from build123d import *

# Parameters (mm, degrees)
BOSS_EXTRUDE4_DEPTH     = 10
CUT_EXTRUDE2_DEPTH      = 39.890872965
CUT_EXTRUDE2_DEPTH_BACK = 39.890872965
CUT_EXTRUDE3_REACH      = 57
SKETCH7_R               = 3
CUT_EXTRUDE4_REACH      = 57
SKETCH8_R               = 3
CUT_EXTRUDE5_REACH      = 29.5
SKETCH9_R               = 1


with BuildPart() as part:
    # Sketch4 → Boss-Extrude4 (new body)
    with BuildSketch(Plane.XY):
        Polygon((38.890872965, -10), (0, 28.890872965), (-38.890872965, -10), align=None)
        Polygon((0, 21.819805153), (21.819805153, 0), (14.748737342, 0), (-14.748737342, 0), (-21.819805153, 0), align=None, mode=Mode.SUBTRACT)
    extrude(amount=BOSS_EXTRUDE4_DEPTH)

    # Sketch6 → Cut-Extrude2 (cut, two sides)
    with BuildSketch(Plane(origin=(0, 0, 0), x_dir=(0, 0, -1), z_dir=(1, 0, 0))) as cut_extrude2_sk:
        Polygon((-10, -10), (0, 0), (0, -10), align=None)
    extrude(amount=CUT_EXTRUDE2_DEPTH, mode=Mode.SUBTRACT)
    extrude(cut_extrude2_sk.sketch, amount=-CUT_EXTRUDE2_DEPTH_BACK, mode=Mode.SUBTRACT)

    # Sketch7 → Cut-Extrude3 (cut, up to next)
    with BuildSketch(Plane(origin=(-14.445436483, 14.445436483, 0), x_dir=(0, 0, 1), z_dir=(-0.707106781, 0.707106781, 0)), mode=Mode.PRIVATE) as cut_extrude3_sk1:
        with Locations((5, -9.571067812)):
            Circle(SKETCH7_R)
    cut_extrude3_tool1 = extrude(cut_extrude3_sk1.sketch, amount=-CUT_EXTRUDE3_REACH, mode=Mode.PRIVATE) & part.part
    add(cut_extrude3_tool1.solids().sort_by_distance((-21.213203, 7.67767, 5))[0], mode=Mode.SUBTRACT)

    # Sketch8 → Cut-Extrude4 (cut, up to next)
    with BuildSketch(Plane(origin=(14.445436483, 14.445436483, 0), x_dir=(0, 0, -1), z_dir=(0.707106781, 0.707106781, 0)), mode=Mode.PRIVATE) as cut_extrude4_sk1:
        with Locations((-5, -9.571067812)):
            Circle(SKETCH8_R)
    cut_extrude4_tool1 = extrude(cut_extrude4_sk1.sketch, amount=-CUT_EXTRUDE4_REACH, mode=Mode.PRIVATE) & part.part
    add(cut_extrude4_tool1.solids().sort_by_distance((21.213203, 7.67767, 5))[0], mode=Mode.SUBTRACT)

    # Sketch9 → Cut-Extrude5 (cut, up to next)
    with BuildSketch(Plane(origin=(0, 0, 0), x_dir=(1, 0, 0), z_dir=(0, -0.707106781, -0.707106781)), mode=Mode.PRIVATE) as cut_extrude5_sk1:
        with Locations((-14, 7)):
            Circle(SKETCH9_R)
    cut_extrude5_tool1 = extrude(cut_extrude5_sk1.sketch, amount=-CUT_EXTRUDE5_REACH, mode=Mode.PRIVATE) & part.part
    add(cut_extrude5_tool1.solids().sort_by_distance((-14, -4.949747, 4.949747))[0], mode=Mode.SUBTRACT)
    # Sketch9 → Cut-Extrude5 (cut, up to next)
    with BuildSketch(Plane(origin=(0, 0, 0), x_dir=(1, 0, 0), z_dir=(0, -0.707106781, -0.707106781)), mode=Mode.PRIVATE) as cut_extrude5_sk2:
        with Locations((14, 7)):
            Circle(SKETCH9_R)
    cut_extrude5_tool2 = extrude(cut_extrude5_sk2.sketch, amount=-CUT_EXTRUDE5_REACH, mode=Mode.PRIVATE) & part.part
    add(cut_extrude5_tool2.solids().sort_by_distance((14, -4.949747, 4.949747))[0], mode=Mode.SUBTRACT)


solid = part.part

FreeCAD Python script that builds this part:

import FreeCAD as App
import Part
import Sketcher
from FreeCAD import Vector

doc = App.newDocument("Part")
body = doc.addObject("PartDesign::Body", "Body")

sketch1 = body.newObject("Sketcher::SketchObject", "Sketch")
sketch1.AttachmentSupport = (doc.getObject("XY_Plane"), [""])
sketch1.MapMode = "FlatFace"
sketch1.addGeometry([
    Part.LineSegment(Vector(39, -10, 0), Vector(0, 29, 0)),
    Part.LineSegment(Vector(0, 29, 0), Vector(-39, -10, 0)),
    Part.LineSegment(Vector(-39, -10, 0), Vector(39, -10, 0)),
    Part.LineSegment(Vector(-22, 0, 0), Vector(0, 22, 0)),
    Part.LineSegment(Vector(0, 22, 0), Vector(22, 0, 0)),
    Part.LineSegment(Vector(22, 0, 0), Vector(-22, 0, 0)),
], False)
sketch1.addConstraint([
    Sketcher.Constraint("Coincident", 0, 2, 1, 1),
    Sketcher.Constraint("Coincident", 1, 2, 2, 1),
    Sketcher.Constraint("Coincident", 2, 2, 0, 1),
    Sketcher.Constraint("Coincident", 3, 2, 4, 1),
    Sketcher.Constraint("Coincident", 4, 2, 5, 1),
    Sketcher.Constraint("Coincident", 5, 2, 3, 1),
    Sketcher.Constraint("Horizontal", 2),
    Sketcher.Constraint("Horizontal", 5),
    Sketcher.Constraint("Symmetric", 4, 2, 5, 2, -1, 1),
    Sketcher.Constraint("PointOnObject", 0, 2, -2),
    Sketcher.Constraint("PointOnObject", 3, 2, -2),
    Sketcher.Constraint("Perpendicular", 0, 1),
    Sketcher.Constraint("Parallel", 1, 3),
    Sketcher.Constraint("Perpendicular", 3, 4),
    Sketcher.Constraint("Distance", 0, 55.0),
    Sketcher.Constraint("DistanceY", 1, 2, -1, 1, 10.0),
    Sketcher.Constraint("DistanceX", 5, 2, 5, 1, 43.63961),
])
pad1 = body.newObject("PartDesign::Pad", "Pad")
pad1.Profile = sketch1
pad1.Length = 10

sketch2 = body.newObject("Sketcher::SketchObject", "Sketch001")
sketch2.AttachmentSupport = (doc.getObject("YZ_Plane"), [""])
sketch2.MapMode = "FlatFace"
sketch2.addGeometry([
    Part.LineSegment(Vector(0, 0, 0), Vector(-10, 10, 0)),
    Part.LineSegment(Vector(-10, 10, 0), Vector(-10, 0, 0)),
    Part.LineSegment(Vector(-10, 0, 0), Vector(0, 0, 0)),
], False)
sketch2.addConstraint([
    Sketcher.Constraint("Coincident", 0, 2, 1, 1),
    Sketcher.Constraint("Coincident", 1, 2, 2, 1),
    Sketcher.Constraint("Coincident", 2, 2, 0, 1),
    Sketcher.Constraint("Vertical", 1),
    Sketcher.Constraint("Horizontal", 2),
    Sketcher.Constraint("Coincident", 2, 2, -1, 1),
    Sketcher.Constraint("Equal", 2, 1),
    Sketcher.Constraint("DistanceX", 2, 1, 2, 2, 10.0),
])
pocket1 = body.newObject("PartDesign::Pocket", "Pocket")
pocket1.Profile = sketch2
pocket1.Type = "ThroughAll"
pocket1.Midplane = True

sketch3 = body.newObject("Sketcher::SketchObject", "Sketch002")
sketch3.Placement = App.Placement(Vector(-14.445436, 14.445436, 0), App.Rotation(Vector(0, 0, 1), Vector(0.707106781, 0.707106781, 0), Vector(-0.707106781, 0.707106781, 0), "ZXY"))
sketch3.addGeometry(Part.Circle(Vector(5, -9.6, 0), Vector(0, 0, 1), 3), False)
sketch3.addConstraint([
    Sketcher.Constraint("Diameter", 0, 6.0),
    Sketcher.Constraint("DistanceX", -1, 1, 0, 3, 5.0),
    Sketcher.Constraint("DistanceY", 0, 3, -1, 1, 9.571068),
])
pocket2 = body.newObject("PartDesign::Pocket", "Pocket001")
pocket2.Profile = sketch3
pocket2.Type = "UpToFirst"

sketch4 = body.newObject("Sketcher::SketchObject", "Sketch003")
sketch4.Placement = App.Placement(Vector(14.445436, 14.445436, 0), App.Rotation(Vector(0, 0, -1), Vector(-0.707106781, 0.707106781, 0), Vector(0.707106781, 0.707106781, 0), "ZXY"))
sketch4.addGeometry(Part.Circle(Vector(-5, -9.6, 0), Vector(0, 0, 1), 3), False)
sketch4.addConstraint([
    Sketcher.Constraint("Diameter", 0, 6.0),
    Sketcher.Constraint("DistanceX", 0, 3, -1, 1, 5.0),
    Sketcher.Constraint("DistanceY", 0, 3, -1, 1, 9.571068),
])
pocket3 = body.newObject("PartDesign::Pocket", "Pocket002")
pocket3.Profile = sketch4
pocket3.Type = "UpToFirst"

sketch5 = body.newObject("Sketcher::SketchObject", "Sketch004")
sketch5.Placement = App.Placement(Vector(0, 0, 0), App.Rotation(Vector(1, 0, 0), Vector(0, -0.707106781, 0.707106781), Vector(0, -0.707106781, -0.707106781), "ZXY"))
sketch5.addGeometry(Part.Circle(Vector(-14, 7, 0), Vector(0, 0, 1), 1), False)
sketch5.addConstraint([
    Sketcher.Constraint("Diameter", 0, 2.0),
    Sketcher.Constraint("DistanceX", 0, 3, -1, 1, 14.0),
    Sketcher.Constraint("DistanceY", -1, 1, 0, 3, 7.0),
])
pocket4 = body.newObject("PartDesign::Pocket", "Pocket003")
pocket4.Profile = sketch5
pocket4.Type = "UpToFirst"

sketch6 = body.newObject("Sketcher::SketchObject", "Sketch005")
sketch6.Placement = App.Placement(Vector(0, 0, 0), App.Rotation(Vector(1, 0, 0), Vector(0, -0.707106781, 0.707106781), Vector(0, -0.707106781, -0.707106781), "ZXY"))
sketch6.addGeometry(Part.Circle(Vector(14, 7, 0), Vector(0, 0, 1), 1), False)
sketch6.addConstraint([
    Sketcher.Constraint("Diameter", 0, 2.0),
    Sketcher.Constraint("DistanceX", -1, 1, 0, 3, 14.0),
    Sketcher.Constraint("DistanceY", -1, 1, 0, 3, 7.0),
])
pocket5 = body.newObject("PartDesign::Pocket", "Pocket004")
pocket5.Profile = sketch6
pocket5.Type = "UpToFirst"

doc.recompute()
